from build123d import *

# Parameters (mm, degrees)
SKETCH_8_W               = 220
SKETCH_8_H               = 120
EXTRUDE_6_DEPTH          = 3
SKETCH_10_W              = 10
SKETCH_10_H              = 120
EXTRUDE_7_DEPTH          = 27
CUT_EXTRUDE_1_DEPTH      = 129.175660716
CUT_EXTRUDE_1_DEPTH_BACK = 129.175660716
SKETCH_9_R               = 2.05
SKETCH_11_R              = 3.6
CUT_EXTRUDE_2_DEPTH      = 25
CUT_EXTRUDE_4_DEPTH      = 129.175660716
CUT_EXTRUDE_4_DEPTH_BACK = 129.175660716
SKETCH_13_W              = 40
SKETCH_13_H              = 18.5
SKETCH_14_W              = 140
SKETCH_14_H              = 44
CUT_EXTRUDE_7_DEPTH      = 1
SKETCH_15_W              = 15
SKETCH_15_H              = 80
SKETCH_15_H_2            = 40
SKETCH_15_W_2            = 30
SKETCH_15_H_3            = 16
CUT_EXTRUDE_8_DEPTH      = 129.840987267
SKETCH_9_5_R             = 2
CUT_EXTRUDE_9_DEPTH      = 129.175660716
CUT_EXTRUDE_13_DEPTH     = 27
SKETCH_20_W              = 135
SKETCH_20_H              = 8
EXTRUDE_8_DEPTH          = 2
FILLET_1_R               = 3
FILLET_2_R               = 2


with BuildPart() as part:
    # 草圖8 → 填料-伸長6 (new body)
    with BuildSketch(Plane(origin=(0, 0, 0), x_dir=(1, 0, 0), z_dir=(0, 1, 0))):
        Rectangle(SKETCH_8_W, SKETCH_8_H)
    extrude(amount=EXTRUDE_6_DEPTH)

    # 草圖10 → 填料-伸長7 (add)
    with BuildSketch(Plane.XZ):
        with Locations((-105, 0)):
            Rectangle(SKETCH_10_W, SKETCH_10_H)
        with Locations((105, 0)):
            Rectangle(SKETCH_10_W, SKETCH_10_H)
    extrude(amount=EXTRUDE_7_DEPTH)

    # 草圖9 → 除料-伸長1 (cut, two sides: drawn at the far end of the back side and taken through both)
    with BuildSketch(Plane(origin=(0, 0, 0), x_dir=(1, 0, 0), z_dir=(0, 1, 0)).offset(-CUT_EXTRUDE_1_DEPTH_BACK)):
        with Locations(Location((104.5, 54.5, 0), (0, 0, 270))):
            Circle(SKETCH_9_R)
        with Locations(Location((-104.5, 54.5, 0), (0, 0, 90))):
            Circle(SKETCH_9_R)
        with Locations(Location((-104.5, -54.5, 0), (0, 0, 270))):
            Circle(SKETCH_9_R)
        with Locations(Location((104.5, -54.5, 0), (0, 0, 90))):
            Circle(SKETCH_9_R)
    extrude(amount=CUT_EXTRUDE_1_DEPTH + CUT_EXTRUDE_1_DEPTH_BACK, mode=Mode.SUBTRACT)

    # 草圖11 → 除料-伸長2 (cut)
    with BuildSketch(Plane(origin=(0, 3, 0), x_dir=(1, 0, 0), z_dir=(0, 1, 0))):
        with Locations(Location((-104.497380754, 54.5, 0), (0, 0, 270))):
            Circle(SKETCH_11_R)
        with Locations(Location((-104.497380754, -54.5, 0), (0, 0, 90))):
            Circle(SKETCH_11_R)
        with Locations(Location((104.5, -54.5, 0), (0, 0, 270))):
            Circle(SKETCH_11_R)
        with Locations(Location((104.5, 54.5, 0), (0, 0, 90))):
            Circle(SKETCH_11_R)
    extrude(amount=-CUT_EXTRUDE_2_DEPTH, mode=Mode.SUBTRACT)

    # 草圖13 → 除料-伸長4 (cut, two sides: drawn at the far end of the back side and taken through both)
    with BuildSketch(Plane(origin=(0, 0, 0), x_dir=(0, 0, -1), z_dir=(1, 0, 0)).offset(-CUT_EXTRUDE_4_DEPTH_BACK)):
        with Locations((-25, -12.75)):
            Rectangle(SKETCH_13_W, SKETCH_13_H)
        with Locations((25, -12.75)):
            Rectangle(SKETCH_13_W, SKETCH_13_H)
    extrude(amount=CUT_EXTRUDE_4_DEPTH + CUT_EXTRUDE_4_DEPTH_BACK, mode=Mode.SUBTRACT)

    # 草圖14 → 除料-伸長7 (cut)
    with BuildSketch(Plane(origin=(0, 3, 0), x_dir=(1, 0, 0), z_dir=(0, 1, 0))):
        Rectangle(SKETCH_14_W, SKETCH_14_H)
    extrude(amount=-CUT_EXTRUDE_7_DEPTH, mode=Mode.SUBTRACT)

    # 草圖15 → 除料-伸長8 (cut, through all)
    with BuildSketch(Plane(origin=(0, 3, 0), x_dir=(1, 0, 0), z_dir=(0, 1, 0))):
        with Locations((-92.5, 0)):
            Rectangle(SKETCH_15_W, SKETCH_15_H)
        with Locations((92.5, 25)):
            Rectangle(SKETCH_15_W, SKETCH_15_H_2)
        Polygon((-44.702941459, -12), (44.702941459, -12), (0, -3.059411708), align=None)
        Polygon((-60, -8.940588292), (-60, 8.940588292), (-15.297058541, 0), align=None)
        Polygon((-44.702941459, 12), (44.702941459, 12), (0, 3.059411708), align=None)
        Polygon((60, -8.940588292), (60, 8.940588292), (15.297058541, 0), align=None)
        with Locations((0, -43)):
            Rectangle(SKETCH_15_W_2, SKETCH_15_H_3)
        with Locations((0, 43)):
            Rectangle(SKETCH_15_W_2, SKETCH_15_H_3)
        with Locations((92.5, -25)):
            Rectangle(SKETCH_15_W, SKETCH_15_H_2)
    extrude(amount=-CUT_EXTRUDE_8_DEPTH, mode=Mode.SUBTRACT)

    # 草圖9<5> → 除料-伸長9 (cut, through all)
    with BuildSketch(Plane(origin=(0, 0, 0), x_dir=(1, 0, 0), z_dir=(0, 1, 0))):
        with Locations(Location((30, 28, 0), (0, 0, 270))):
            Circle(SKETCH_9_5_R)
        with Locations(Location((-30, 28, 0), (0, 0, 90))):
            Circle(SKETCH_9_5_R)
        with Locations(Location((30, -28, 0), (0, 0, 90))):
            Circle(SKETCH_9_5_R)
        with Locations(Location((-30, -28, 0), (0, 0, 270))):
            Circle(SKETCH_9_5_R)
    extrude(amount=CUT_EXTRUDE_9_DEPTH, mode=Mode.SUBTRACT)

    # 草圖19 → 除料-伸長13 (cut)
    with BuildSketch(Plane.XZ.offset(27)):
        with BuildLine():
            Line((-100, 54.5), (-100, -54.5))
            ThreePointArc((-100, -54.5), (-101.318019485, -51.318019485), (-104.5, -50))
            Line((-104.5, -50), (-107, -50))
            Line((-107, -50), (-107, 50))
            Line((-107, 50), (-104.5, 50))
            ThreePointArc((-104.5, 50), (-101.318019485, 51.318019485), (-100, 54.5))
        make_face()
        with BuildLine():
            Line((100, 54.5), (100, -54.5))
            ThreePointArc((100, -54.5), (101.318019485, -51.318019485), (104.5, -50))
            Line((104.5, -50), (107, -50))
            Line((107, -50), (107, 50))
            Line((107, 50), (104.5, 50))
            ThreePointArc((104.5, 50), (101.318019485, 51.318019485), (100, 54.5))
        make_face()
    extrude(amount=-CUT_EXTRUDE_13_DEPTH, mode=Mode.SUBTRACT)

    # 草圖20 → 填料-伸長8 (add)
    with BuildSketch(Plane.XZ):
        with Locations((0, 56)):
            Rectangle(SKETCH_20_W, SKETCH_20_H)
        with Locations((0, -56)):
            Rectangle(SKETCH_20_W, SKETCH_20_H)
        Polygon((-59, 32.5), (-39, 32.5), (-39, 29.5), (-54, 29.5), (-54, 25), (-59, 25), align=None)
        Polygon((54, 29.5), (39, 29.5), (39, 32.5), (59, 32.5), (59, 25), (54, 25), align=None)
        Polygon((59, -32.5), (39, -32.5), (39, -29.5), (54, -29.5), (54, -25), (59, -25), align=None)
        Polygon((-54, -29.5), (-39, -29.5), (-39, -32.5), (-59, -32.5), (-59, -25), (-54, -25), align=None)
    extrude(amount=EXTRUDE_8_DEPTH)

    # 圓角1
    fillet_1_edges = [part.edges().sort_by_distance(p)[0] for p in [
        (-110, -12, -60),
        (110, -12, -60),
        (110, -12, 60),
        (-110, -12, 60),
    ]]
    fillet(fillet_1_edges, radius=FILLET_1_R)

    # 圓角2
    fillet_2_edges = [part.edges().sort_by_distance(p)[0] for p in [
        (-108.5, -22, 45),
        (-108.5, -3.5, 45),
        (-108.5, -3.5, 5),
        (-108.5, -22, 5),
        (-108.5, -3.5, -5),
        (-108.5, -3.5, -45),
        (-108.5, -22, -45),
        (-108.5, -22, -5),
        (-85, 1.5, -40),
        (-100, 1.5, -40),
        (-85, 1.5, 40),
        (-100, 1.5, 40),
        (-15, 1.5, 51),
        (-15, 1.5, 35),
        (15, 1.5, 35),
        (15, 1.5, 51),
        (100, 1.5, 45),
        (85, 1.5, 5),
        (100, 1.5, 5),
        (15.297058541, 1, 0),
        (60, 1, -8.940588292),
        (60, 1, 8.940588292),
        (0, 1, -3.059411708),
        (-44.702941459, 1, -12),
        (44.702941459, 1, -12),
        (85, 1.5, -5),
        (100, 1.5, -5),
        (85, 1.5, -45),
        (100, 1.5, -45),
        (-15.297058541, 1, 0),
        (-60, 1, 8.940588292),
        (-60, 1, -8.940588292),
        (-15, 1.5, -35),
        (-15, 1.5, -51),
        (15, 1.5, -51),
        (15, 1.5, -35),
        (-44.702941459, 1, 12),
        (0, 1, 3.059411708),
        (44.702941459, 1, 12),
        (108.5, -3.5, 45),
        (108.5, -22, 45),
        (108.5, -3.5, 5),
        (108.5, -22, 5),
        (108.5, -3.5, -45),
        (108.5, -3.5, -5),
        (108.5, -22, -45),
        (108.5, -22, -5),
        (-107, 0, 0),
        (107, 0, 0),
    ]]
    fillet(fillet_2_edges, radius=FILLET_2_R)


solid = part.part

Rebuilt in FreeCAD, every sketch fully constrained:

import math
import FreeCAD as App
import Part
import Sketcher
from FreeCAD import Vector
Q = App.Units.Quantity


def edges_at(feature, points):
    """Names of the edges that pass closest to the given points."""
    edges = feature.Shape.Edges
    near = lambda p: min(range(len(edges)), key=lambda i: edges[i].distToShape(Part.Vertex(*p))[0])
    return sorted({f"Edge{near(p) + 1}" for p in points})

doc = App.newDocument("Part")
body = doc.addObject("PartDesign::Body", "Body")

# Sketch on XZ plane
sketch1 = body.newObject("Sketcher::SketchObject", "Sketch")
sketch1.AttachmentSupport = (doc.getObject("XZ_Plane"), [""])
sketch1.MapMode = "FlatFace"
sketch1.addGeometry([
    Part.LineSegment(Vector(-110, -60, 0), Vector(-110, 60, 0)),
    Part.LineSegment(Vector(-110, 60, 0), Vector(110, 60, 0)),
    Part.LineSegment(Vector(110, 60, 0), Vector(110, -60, 0)),
    Part.LineSegment(Vector(110, -60, 0), Vector(-110, -60, 0)),
], False)
sketch1.addConstraint([
    Sketcher.Constraint("Coincident", 0, 2, 1, 1),
    Sketcher.Constraint("Coincident", 1, 2, 2, 1),
    Sketcher.Constraint("Coincident", 2, 2, 3, 1),
    Sketcher.Constraint("Coincident", 3, 2, 0, 1),
    Sketcher.Constraint("Vertical", 0),
    Sketcher.Constraint("Horizontal", 1),
    Sketcher.Constraint("Vertical", 2),
    Sketcher.Constraint("Horizontal", 3),
    Sketcher.Constraint("Symmetric", 0, 2, 2, 2, -1, 1),
    Sketcher.Constraint("DistanceX", 1, 1, 1, 2, Q("220 mm")),
    Sketcher.Constraint("DistanceY", 0, 1, 0, 2, Q("120 mm")),
])
pad1 = body.newObject("PartDesign::Pad", "Pad")
pad1.Profile = sketch1
pad1.Length = 3
pad1.Reversed = True

# Sketch on XZ plane
sketch2 = body.newObject("Sketcher::SketchObject", "Sketch001")
sketch2.AttachmentSupport = (doc.getObject("XZ_Plane"), [""])
sketch2.MapMode = "FlatFace"
sketch2.addGeometry([
    Part.LineSegment(Vector(-110, 60, 0), Vector(-110, -60, 0)),  # 0
    Part.LineSegment(Vector(-110, -60, 0), Vector(-100, -60, 0)),  # 1
    Part.LineSegment(Vector(-100, -60, 0), Vector(-100, 60, 0)),  # 2
    Part.LineSegment(Vector(-100, 60, 0), Vector(-110, 60, 0)),  # 3
    Part.LineSegment(Vector(100, 60, 0), Vector(100, -60, 0)),  # 4
    Part.LineSegment(Vector(100, -60, 0), Vector(110, -60, 0)),  # 5
    Part.LineSegment(Vector(110, -60, 0), Vector(110, 60, 0)),  # 6
    Part.LineSegment(Vector(110, 60, 0), Vector(100, 60, 0)),  # 7
], False)
sketch2.addConstraint([
    Sketcher.Constraint("Coincident", 0, 2, 1, 1),
    Sketcher.Constraint("Coincident", 1, 2, 2, 1),
    Sketcher.Constraint("Coincident", 2, 2, 3, 1),
    Sketcher.Constraint("Coincident", 3, 2, 0, 1),
    Sketcher.Constraint("Coincident", 4, 2, 5, 1),
    Sketcher.Constraint("Coincident", 5, 2, 6, 1),
    Sketcher.Constraint("Coincident", 6, 2, 7, 1),
    Sketcher.Constraint("Coincident", 7, 2, 4, 1),
    Sketcher.Constraint("Vertical", 0),
    Sketcher.Constraint("Horizontal", 1),
    Sketcher.Constraint("Vertical", 2),
    Sketcher.Constraint("Horizontal", 3),
    Sketcher.Constraint("Vertical", 4),
    Sketcher.Constraint("Horizontal", 5),
    Sketcher.Constraint("Vertical", 6),
    Sketcher.Constraint("Horizontal", 7),
    Sketcher.Constraint("Symmetric", 2, 2, 4, 2, -1, 1),
    Sketcher.Constraint("Symmetric", 0, 2, 6, 2, -1, 1),
    Sketcher.Constraint("Horizontal", 1, 2, 4, 2),
    Sketcher.Constraint("DistanceX", 1, 1, 1, 2, Q("10 mm")),
    Sketcher.Constraint("DistanceY", 0, 2, 0, 1, Q("120 mm")),
    Sketcher.Constraint("DistanceX", 0, 2, -1, 1, Q("110 mm")),
])
pad2 = body.newObject("PartDesign::Pad", "Pad001")
pad2.Profile = sketch2
pad2.Length = 27

# Sketch on XZ plane
sketch3 = body.newObject("Sketcher::SketchObject", "Sketch002")
sketch3.AttachmentSupport = (doc.getObject("XZ_Plane"), [""])
sketch3.MapMode = "FlatFace"
sketch3.addGeometry([
    Part.Circle(Vector(104.5, -54.5, 0), Vector(0, 0, 1), 2.05),
    Part.Circle(Vector(-104.5, -54.5, 0), Vector(0, 0, 1), 2.05),
    Part.Circle(Vector(-104.5, 54.5, 0), Vector(0, 0, 1), 2.05),
    Part.Circle(Vector(104.5, 54.5, 0), Vector(0, 0, 1), 2.05),
], False)
sketch3.addConstraint([
    Sketcher.Constraint("Equal", 0, 1),
    Sketcher.Constraint("Equal", 1, 2),
    Sketcher.Constraint("Equal", 2, 3),
    Sketcher.Constraint("Symmetric", 0, 3, 2, 3, -1, 1),
    Sketcher.Constraint("Symmetric", 1, 3, 3, 3, -1, 1),
    Sketcher.Constraint("Symmetric", 0, 3, 1, 3, -2),
    Sketcher.Constraint("Diameter", 0, Q("4.1 mm")),
    Sketcher.Constraint("DistanceX", 1, 3, 0, 3, Q("209 mm")),
    Sketcher.Constraint("DistanceY", 1, 3, 2, 3, Q("109 mm")),
])
pocket1 = body.newObject("PartDesign::Pocket", "Pocket")
pocket1.Profile = sketch3
pocket1.Type = "ThroughAll"
pocket1.Midplane = True

# Sketch on XZ plane
sketch4 = body.newObject("Sketcher::SketchObject", "Sketch003")
sketch4.AttachmentSupport = (doc.getObject("XZ_Plane"), [""])
sketch4.MapMode = "FlatFace"
sketch4.AttachmentOffset = App.Placement(Vector(0, 0, -3), App.Rotation())
sketch4.addGeometry([
    Part.Circle(Vector(-104.497381, -54.5, 0), Vector(0, 0, 1), 3.6),
    Part.Circle(Vector(-104.497381, 54.5, 0), Vector(0, 0, 1), 3.6),
    Part.Circle(Vector(104.5, 54.5, 0), Vector(0, 0, 1), 3.6),
    Part.Circle(Vector(104.5, -54.5, 0), Vector(0, 0, 1), 3.6),
], False)
sketch4.addConstraint([
    Sketcher.Constraint("Equal", 0, 1),
    Sketcher.Constraint("Equal", 1, 2),
    Sketcher.Constraint("Equal", 2, 3),
    Sketcher.Constraint("Symmetric", 0, 3, 1, 3, -1),
    Sketcher.Constraint("Symmetric", 2, 3, 3, 3, -1),
    Sketcher.Constraint("Horizontal", 1, 3, 2, 3),
    Sketcher.Constraint("Diameter", 0, Q("7.2 mm")),
    Sketcher.Constraint("DistanceY", 0, 3, 1, 3, Q("109 mm")),
    Sketcher.Constraint("DistanceX", -1, 1, 2, 3, Q("104.5 mm")),
    Sketcher.Constraint("DistanceX", 0, 3, -1, 1, Q("104.497381 mm")),
])
pocket2 = body.newObject("PartDesign::Pocket", "Pocket001")
pocket2.Profile = sketch4
pocket2.Length = 25
pocket2.Reversed = True

# Sketch on YZ plane
sketch5 = body.newObject("Sketcher::SketchObject", "Sketch004")
sketch5.AttachmentSupport = (doc.getObject("YZ_Plane"), [""])
sketch5.MapMode = "FlatFace"
sketch5.addGeometry([
    Part.LineSegment(Vector(-3.5, 45, 0), Vector(-22, 45, 0)),  # 0
    Part.LineSegment(Vector(-22, 45, 0), Vector(-22, 5, 0)),  # 1
    Part.LineSegment(Vector(-22, 5, 0), Vector(-3.5, 5, 0)),  # 2
    Part.LineSegment(Vector(-3.5, 5, 0), Vector(-3.5, 45, 0)),  # 3
    Part.LineSegment(Vector(-3.5, -5, 0), Vector(-22, -5, 0)),  # 4
    Part.LineSegment(Vector(-22, -5, 0), Vector(-22, -45, 0)),  # 5
    Part.LineSegment(Vector(-22, -45, 0), Vector(-3.5, -45, 0)),  # 6
    Part.LineSegment(Vector(-3.5, -45, 0), Vector(-3.5, -5, 0)),  # 7
], False)
sketch5.addConstraint([
    Sketcher.Constraint("Coincident", 0, 2, 1, 1),
    Sketcher.Constraint("Coincident", 1, 2, 2, 1),
    Sketcher.Constraint("Coincident", 2, 2, 3, 1),
    Sketcher.Constraint("Coincident", 3, 2, 0, 1),
    Sketcher.Constraint("Coincident", 4, 2, 5, 1),
    Sketcher.Constraint("Coincident", 5, 2, 6, 1),
    Sketcher.Constraint("Coincident", 6, 2, 7, 1),
    Sketcher.Constraint("Coincident", 7, 2, 4, 1),
    Sketcher.Constraint("Horizontal", 0),
    Sketcher.Constraint("Vertical", 1),
    Sketcher.Constraint("Horizontal", 2),
    Sketcher.Constraint("Vertical", 3),
    Sketcher.Constraint("Horizontal", 4),
    Sketcher.Constraint("Vertical", 5),
    Sketcher.Constraint("Horizontal", 6),
    Sketcher.Constraint("Vertical", 7),
    Sketcher.Constraint("Symmetric", 1, 2, 4, 2, -1),
    Sketcher.Constraint("Symmetric", 3, 2, 6, 2, -1),
    Sketcher.Constraint("DistanceY", 1, 2, 1, 1, Q("40 mm")),
    Sketcher.Constraint("DistanceX", 0, 2, 0, 1, Q("18.5 mm")),
    Sketcher.Constraint("DistanceX", 0, 2, -1, 1, Q("22 mm")),
    Sketcher.Constraint("DistanceY", -1, 1, 0, 2, Q("45 mm")),
])
pocket3 = body.newObject("PartDesign::Pocket", "Pocket002")
pocket3.Profile = sketch5
pocket3.Type = "ThroughAll"
pocket3.Midplane = True

# Sketch on XZ plane
sketch6 = body.newObject("Sketcher::SketchObject", "Sketch005")
sketch6.AttachmentSupport = (doc.getObject("XZ_Plane"), [""])
sketch6.MapMode = "FlatFace"
sketch6.AttachmentOffset = App.Placement(Vector(0, 0, -3), App.Rotation())
sketch6.addGeometry([
    Part.LineSegment(Vector(-70, -22, 0), Vector(-70, 22, 0)),
    Part.LineSegment(Vector(-70, 22, 0), Vector(70, 22, 0)),
    Part.LineSegment(Vector(70, 22, 0), Vector(70, -22, 0)),
    Part.LineSegment(Vector(70, -22, 0), Vector(-70, -22, 0)),
], False)
sketch6.addConstraint([
    Sketcher.Constraint("Coincident", 0, 2, 1, 1),
    Sketcher.Constraint("Coincident", 1, 2, 2, 1),
    Sketcher.Constraint("Coincident", 2, 2, 3, 1),
    Sketcher.Constraint("Coincident", 3, 2, 0, 1),
    Sketcher.Constraint("Vertical", 0),
    Sketcher.Constraint("Horizontal", 1),
    Sketcher.Constraint("Vertical", 2),
    Sketcher.Constraint("Horizontal", 3),
    Sketcher.Constraint("Symmetric", 0, 2, 2, 2, -1, 1),
    Sketcher.Constraint("DistanceX", 1, 1, 1, 2, Q("140 mm")),
    Sketcher.Constraint("DistanceY", 0, 1, 0, 2, Q("44 mm")),
])
pocket4 = body.newObject("PartDesign::Pocket", "Pocket003")
pocket4.Profile = sketch6
pocket4.Length = 1
pocket4.Reversed = True

# Sketch on XZ plane
sketch7 = body.newObject("Sketcher::SketchObject", "Sketch006")
sketch7.AttachmentSupport = (doc.getObject("XZ_Plane"), [""])
sketch7.MapMode = "FlatFace"
sketch7.AttachmentOffset = App.Placement(Vector(0, 0, -3), App.Rotation())
sketch7.addGeometry([
    Part.LineSegment(Vector(-100, -40, 0), Vector(-100, 40, 0)),  # 0
    Part.LineSegment(Vector(-100, 40, 0), Vector(-85, 40, 0)),  # 1
    Part.LineSegment(Vector(-85, 40, 0), Vector(-85, -40, 0)),  # 2
    Part.LineSegment(Vector(-85, -40, 0), Vector(-100, -40, 0)),  # 3
    Part.LineSegment(Vector(85, -45, 0), Vector(85, -5, 0)),  # 4
    Part.LineSegment(Vector(85, -5, 0), Vector(100, -5, 0)),  # 5
    Part.LineSegment(Vector(100, -5, 0), Vector(100, -45, 0)),  # 6
    Part.LineSegment(Vector(100, -45, 0), Vector(85, -45, 0)),  # 7
    Part.LineSegment(Vector(-44.702941, 12, 0), Vector(44.702941, 12, 0)),  # 8
    Part.LineSegment(Vector(44.702941, 12, 0), Vector(0, 3.059412, 0)),  # 9
    Part.LineSegment(Vector(0, 3.059412, 0), Vector(-44.702941, 12, 0)),  # 10
    Part.LineSegment(Vector(-60, -8.940588, 0), Vector(-60, 8.940588, 0)),  # 11
    Part.LineSegment(Vector(-60, 8.940588, 0), Vector(-15.297059, 0, 0)),  # 12
    Part.LineSegment(Vector(-15.297059, 0, 0), Vector(-60, -8.940588, 0)),  # 13
    Part.LineSegment(Vector(44.702941, -12, 0), Vector(-44.702941, -12, 0)),  # 14
    Part.LineSegment(Vector(-44.702941, -12, 0), Vector(0, -3.059412, 0)),  # 15
    Part.LineSegment(Vector(0, -3.059412, 0), Vector(44.702941, -12, 0)),  # 16
    Part.LineSegment(Vector(60, 8.940588, 0), Vector(60, -8.940588, 0)),  # 17
    Part.LineSegment(Vector(60, -8.940588, 0), Vector(15.297059, 0, 0)),  # 18
    Part.LineSegment(Vector(15.297059, 0, 0), Vector(60, 8.940588, 0)),  # 19
    Part.LineSegment(Vector(-15, 35, 0), Vector(-15, 51, 0)),  # 20
    Part.LineSegment(Vector(-15, 51, 0), Vector(15, 51, 0)),  # 21
    Part.LineSegment(Vector(15, 51, 0), Vector(15, 35, 0)),  # 22
    Part.LineSegment(Vector(15, 35, 0), Vector(-15, 35, 0)),  # 23
    Part.LineSegment(Vector(-15, -51, 0), Vector(-15, -35, 0)),  # 24
    Part.LineSegment(Vector(-15, -35, 0), Vector(15, -35, 0)),  # 25
    Part.LineSegment(Vector(15, -35, 0), Vector(15, -51, 0)),  # 26
    Part.LineSegment(Vector(15, -51, 0), Vector(-15, -51, 0)),  # 27
    Part.LineSegment(Vector(85, 5, 0), Vector(85, 45, 0)),  # 28
    Part.LineSegment(Vector(85, 45, 0), Vector(100, 45, 0)),  # 29
    Part.LineSegment(Vector(100, 45, 0), Vector(100, 5, 0)),  # 30
    Part.LineSegment(Vector(100, 5, 0), Vector(85, 5, 0)),  # 31
], False)
sketch7.addConstraint([
    Sketcher.Constraint("Coincident", 0, 2, 1, 1),
    Sketcher.Constraint("Coincident", 1, 2, 2, 1),
    Sketcher.Constraint("Coincident", 2, 2, 3, 1),
    Sketcher.Constraint("Coincident", 3, 2, 0, 1),
    Sketcher.Constraint("Coincident", 4, 2, 5, 1),
    Sketcher.Constraint("Coincident", 5, 2, 6, 1),
    Sketcher.Constraint("Coincident", 6, 2, 7, 1),
    Sketcher.Constraint("Coincident", 7, 2, 4, 1),
    Sketcher.Constraint("Coincident", 8, 2, 9, 1),
    Sketcher.Constraint("Coincident", 9, 2, 10, 1),
    Sketcher.Constraint("Coincident", 10, 2, 8, 1),
    Sketcher.Constraint("Coincident", 11, 2, 12, 1),
    Sketcher.Constraint("Coincident", 12, 2, 13, 1),
    Sketcher.Constraint("Coincident", 13, 2, 11, 1),
    Sketcher.Constraint("Coincident", 14, 2, 15, 1),
    Sketcher.Constraint("Coincident", 15, 2, 16, 1),
    Sketcher.Constraint("Coincident", 16, 2, 14, 1),
    Sketcher.Constraint("Coincident", 17, 2, 18, 1),
    Sketcher.Constraint("Coincident", 18, 2, 19, 1),
    Sketcher.Constraint("Coincident", 19, 2, 17, 1),
    Sketcher.Constraint("Coincident", 20, 2, 21, 1),
    Sketcher.Constraint("Coincident", 21, 2, 22, 1),
    Sketcher.Constraint("Coincident", 22, 2, 23, 1),
    Sketcher.Constraint("Coincident", 23, 2, 20, 1),
    Sketcher.Constraint("Coincident", 24, 2, 25, 1),
    Sketcher.Constraint("Coincident", 25, 2, 26, 1),
    Sketcher.Constraint("Coincident", 26, 2, 27, 1),
    Sketcher.Constraint("Coincident", 27, 2, 24, 1),
    Sketcher.Constraint("Coincident", 28, 2, 29, 1),
    Sketcher.Constraint("Coincident", 29, 2, 30, 1),
    Sketcher.Constraint("Coincident", 30, 2, 31, 1),
    Sketcher.Constraint("Coincident", 31, 2, 28, 1),
    Sketcher.Constraint("Vertical", 0),
    Sketcher.Constraint("Horizontal", 1),
    Sketcher.Constraint("Vertical", 2),
    Sketcher.Constraint("Horizontal", 3),
    Sketcher.Constraint("Vertical", 4),
    Sketcher.Constraint("Horizontal", 5),
    Sketcher.Constraint("Vertical", 6),
    Sketcher.Constraint("Horizontal", 7),
    Sketcher.Constraint("Horizontal", 8),
    Sketcher.Constraint("Vertical", 11),
    Sketcher.Constraint("Horizontal", 14),
    Sketcher.Constraint("Vertical", 17),
    Sketcher.Constraint("Vertical", 20),
    Sketcher.Constraint("Horizontal", 21),
    Sketcher.Constraint("Vertical", 22),
    Sketcher.Constraint("Horizontal", 23),
    Sketcher.Constraint("Vertical", 24),
    Sketcher.Constraint("Horizontal", 25),
    Sketcher.Constraint("Vertical", 26),
    Sketcher.Constraint("Horizontal", 27),
    Sketcher.Constraint("Vertical", 28),
    Sketcher.Constraint("Horizontal", 29),
    Sketcher.Constraint("Vertical", 30),
    Sketcher.Constraint("Horizontal", 31),
    Sketcher.Constraint("Symmetric", 8, 2, 14, 2, -1, 1),
    Sketcher.Constraint("Symmetric", 9, 2, 15, 2, -1, 1),
    Sketcher.Constraint("Symmetric", 11, 2, 17, 2, -1, 1),
    Sketcher.Constraint("Symmetric", 12, 2, 18, 2, -1, 1),
    Sketcher.Constraint("Symmetric", 22, 2, 24, 2, -1, 1),
    Sketcher.Constraint("Symmetric", 20, 2, 26, 2, -1, 1),
    Sketcher.Constraint("Symmetric", 7, 2, 28, 2, -1),
    Sketcher.Constraint("Symmetric", 5, 2, 30, 2, -1),
    Sketcher.Constraint("PointOnObject", 9, 2, -2),
    Sketcher.Constraint("PointOnObject", 12, 2, -1),
    Sketcher.Constraint("Parallel", 10, 12),
    Sketcher.Constraint("Parallel", 9, 13),
    Sketcher.Constraint("Parallel", 12, 16),
    Sketcher.Constraint("Parallel", 15, 19),
    Sketcher.Constraint("Horizontal", 13, 2, 17, 2),
    Sketcher.Constraint("Vertical", 23, 2, 24, 2),
    Sketcher.Constraint("Equal", 3, 5),
    Sketcher.Constraint("Equal", 10, 12),
    Sketcher.Constraint("DistanceX", 1, 1, 1, 2, Q("15 mm")),
    Sketcher.Constraint("DistanceX", 21, 1, 21, 2, Q("30 mm")),
    Sketcher.Constraint("DistanceY", 0, 1, 0, 2, Q("80 mm")),
    Sketcher.Constraint("DistanceY", 4, 1, 4, 2, Q("40 mm")),
    Sketcher.Constraint("DistanceY", 20, 1, 20, 2, Q("16 mm")),
    Sketcher.Constraint("DistanceX", 0, 2, -1, 1, Q("100 mm")),
    Sketcher.Constraint("DistanceY", -1, 1, 0, 2, Q("40 mm")),
    Sketcher.Constraint("DistanceX", -1, 1, 4, 2, Q("85 mm")),
    Sketcher.Constraint("DistanceY", 4, 2, -1, 1, Q("5 mm")),
    Sketcher.Constraint("DistanceY", -1, 1, 8, 2, Q("12 mm")),
    Sketcher.Constraint("DistanceX", 11, 2, -1, 1, Q("60 mm")),
    Sketcher.Constraint("DistanceY", -1, 1, 20, 2, Q("51 mm")),
    Sketcher.Constraint("DistanceX", 8, 1, 8, 2, Q("89.405883 mm")),
    Sketcher.Constraint("DistanceY", 11, 1, 11, 2, Q("17.881177 mm")),
])
pocket5 = body.newObject("PartDesign::Pocket", "Pocket004")
pocket5.Profile = sketch7
pocket5.Type = "ThroughAll"
pocket5.Reversed = True

# Sketch on XZ plane
sketch8 = body.newObject("Sketcher::SketchObject", "Sketch007")
sketch8.AttachmentSupport = (doc.getObject("XZ_Plane"), [""])
sketch8.MapMode = "FlatFace"
sketch8.addGeometry([
    Part.Circle(Vector(30, -28, 0), Vector(0, 0, 1), 2),
    Part.Circle(Vector(-30, -28, 0), Vector(0, 0, 1), 2),
    Part.Circle(Vector(30, 28, 0), Vector(0, 0, 1), 2),
    Part.Circle(Vector(-30, 28, 0), Vector(0, 0, 1), 2),
], False)
sketch8.addConstraint([
    Sketcher.Constraint("Equal", 0, 1),
    Sketcher.Constraint("Equal", 1, 2),
    Sketcher.Constraint("Equal", 2, 3),
    Sketcher.Constraint("Symmetric", 1, 3, 2, 3, -1, 1),
    Sketcher.Constraint("Symmetric", 0, 3, 3, 3, -1, 1),
    Sketcher.Constraint("Symmetric", 0, 3, 1, 3, -2),
    Sketcher.Constraint("Diameter", 0, Q("4 mm")),
    Sketcher.Constraint("DistanceX", -1, 1, 0, 3, Q("30 mm")),
    Sketcher.Constraint("DistanceY", 0, 3, -1, 1, Q("28 mm")),
])
pocket6 = body.newObject("PartDesign::Pocket", "Pocket005")
pocket6.Profile = sketch8
pocket6.Type = "ThroughAll"

# Sketch on XZ plane
sketch9 = body.newObject("Sketcher::SketchObject", "Sketch008")
sketch9.AttachmentSupport = (doc.getObject("XZ_Plane"), [""])
sketch9.MapMode = "FlatFace"
sketch9.AttachmentOffset = App.Placement(Vector(0, 0, 27), App.Rotation())
sketch9.addGeometry([
    Part.LineSegment(Vector(-100, -54.5, 0), Vector(-100, 54.5, 0)),  # 0
    Part.ArcOfCircle(Part.Circle(Vector(-104.5, 54.5, 0), Vector(0, 0, 1), 4.5), math.radians(-90), math.radians(0)),  # 1
    Part.LineSegment(Vector(-104.5, 50, 0), Vector(-107, 50, 0)),  # 2
    Part.LineSegment(Vector(-107, 50, 0), Vector(-107, -50, 0)),  # 3
    Part.LineSegment(Vector(-107, -50, 0), Vector(-104.5, -50, 0)),  # 4
    Part.ArcOfCircle(Part.Circle(Vector(-104.5, -54.5, 0), Vector(0, 0, 1), 4.5), math.radians(0), math.radians(90)),  # 5
    Part.LineSegment(Vector(100, 54.5, 0), Vector(100, -54.5, 0)),  # 6
    Part.ArcOfCircle(Part.Circle(Vector(104.5, -54.5, 0), Vector(0, 0, 1), 4.5), math.radians(90), math.radians(180)),  # 7
    Part.LineSegment(Vector(104.5, -50, 0), Vector(107, -50, 0)),  # 8
    Part.LineSegment(Vector(107, -50, 0), Vector(107, 50, 0)),  # 9
    Part.LineSegment(Vector(107, 50, 0), Vector(104.5, 50, 0)),  # 10
    Part.ArcOfCircle(Part.Circle(Vector(104.5, 54.5, 0), Vector(0, 0, 1), 4.5), math.radians(-180), math.radians(-90)),  # 11
], False)
sketch9.addConstraint([
    Sketcher.Constraint("Tangent", 0, 2, 1, 2),
    Sketcher.Constraint("Tangent", 1, 1, 2, 1),
    Sketcher.Constraint("Coincident", 2, 2, 3, 1),
    Sketcher.Constraint("Coincident", 3, 2, 4, 1),
    Sketcher.Constraint("Tangent", 4, 2, 5, 2),
    Sketcher.Constraint("Tangent", 5, 1, 0, 1),
    Sketcher.Constraint("Tangent", 6, 2, 7, 2),
    Sketcher.Constraint("Tangent", 7, 1, 8, 1),
    Sketcher.Constraint("Coincident", 8, 2, 9, 1),
    Sketcher.Constraint("Coincident", 9, 2, 10, 1),
    Sketcher.Constraint("Tangent", 10, 2, 11, 2),
    Sketcher.Constraint("Tangent", 11, 1, 6, 1),
    Sketcher.Constraint("Vertical", 0),
    Sketcher.Constraint("Horizontal", 2),
    Sketcher.Constraint("Vertical", 3),
    Sketcher.Constraint("Horizontal", 4),
    Sketcher.Constraint("Vertical", 6),
    Sketcher.Constraint("Horizontal", 8),
    Sketcher.Constraint("Vertical", 9),
    Sketcher.Constraint("Horizontal", 10),
    Sketcher.Constraint("Equal", 1, 5),
    Sketcher.Constraint("Equal", 5, 7),
    Sketcher.Constraint("Equal", 7, 11),
    Sketcher.Constraint("Symmetric", 1, 3, 7, 3, -1, 1),
    Sketcher.Constraint("Symmetric", 3, 2, 9, 2, -1, 1),
    Sketcher.Constraint("Horizontal", 5, 3, 7, 3),
    Sketcher.Constraint("Radius", 1, Q("4.5 mm")),
    Sketcher.Constraint("DistanceY", 0, 1, 0, 2, Q("109 mm")),
    Sketcher.Constraint("DistanceX", 2, 2, 2, 1, Q("2.5 mm")),
    Sketcher.Constraint("DistanceX", 0, 2, -1, 1, Q("100 mm")),
])
pocket7 = body.newObject("PartDesign::Pocket", "Pocket006")
pocket7.Profile = sketch9
pocket7.Length = 27

# Sketch on XZ plane
sketch10 = body.newObject("Sketcher::SketchObject", "Sketch009")
sketch10.AttachmentSupport = (doc.getObject("XZ_Plane"), [""])
sketch10.MapMode = "FlatFace"
sketch10.addGeometry([
    Part.LineSegment(Vector(-67.5, 60, 0), Vector(-67.5, 52, 0)),  # 0
    Part.LineSegment(Vector(-67.5, 52, 0), Vector(67.5, 52, 0)),  # 1
    Part.LineSegment(Vector(67.5, 52, 0), Vector(67.5, 60, 0)),  # 2
    Part.LineSegment(Vector(67.5, 60, 0), Vector(-67.5, 60, 0)),  # 3
    Part.LineSegment(Vector(-67.5, -52, 0), Vector(-67.5, -60, 0)),  # 4
    Part.LineSegment(Vector(-67.5, -60, 0), Vector(67.5, -60, 0)),  # 5
    Part.LineSegment(Vector(67.5, -60, 0), Vector(67.5, -52, 0)),  # 6
    Part.LineSegment(Vector(67.5, -52, 0), Vector(-67.5, -52, 0)),  # 7
    Part.LineSegment(Vector(-39, 32.5, 0), Vector(-59, 32.5, 0)),  # 8
    Part.LineSegment(Vector(-59, 32.5, 0), Vector(-59, 25, 0)),  # 9
    Part.LineSegment(Vector(-59, 25, 0), Vector(-54, 25, 0)),  # 10
    Part.LineSegment(Vector(-54, 25, 0), Vector(-54, 29.5, 0)),  # 11
    Part.LineSegment(Vector(-54, 29.5, 0), Vector(-39, 29.5, 0)),  # 12
    Part.LineSegment(Vector(-39, 29.5, 0), Vector(-39, 32.5, 0)),  # 13
    Part.LineSegment(Vector(39, 29.5, 0), Vector(54, 29.5, 0)),  # 14
    Part.LineSegment(Vector(54, 29.5, 0), Vector(54, 25, 0)),  # 15
    Part.LineSegment(Vector(54, 25, 0), Vector(59, 25, 0)),  # 16
    Part.LineSegment(Vector(59, 25, 0), Vector(59, 32.5, 0)),  # 17
    Part.LineSegment(Vector(59, 32.5, 0), Vector(39, 32.5, 0)),  # 18
    Part.LineSegment(Vector(39, 32.5, 0), Vector(39, 29.5, 0)),  # 19
    Part.LineSegment(Vector(39, -32.5, 0), Vector(59, -32.5, 0)),  # 20
    Part.LineSegment(Vector(59, -32.5, 0), Vector(59, -25, 0)),  # 21
    Part.LineSegment(Vector(59, -25, 0), Vector(54, -25, 0)),  # 22
    Part.LineSegment(Vector(54, -25, 0), Vector(54, -29.5, 0)),  # 23
    Part.LineSegment(Vector(54, -29.5, 0), Vector(39, -29.5, 0)),  # 24
    Part.LineSegment(Vector(39, -29.5, 0), Vector(39, -32.5, 0)),  # 25
    Part.LineSegment(Vector(-39, -29.5, 0), Vector(-54, -29.5, 0)),  # 26
    Part.LineSegment(Vector(-54, -29.5, 0), Vector(-54, -25, 0)),  # 27
    Part.LineSegment(Vector(-54, -25, 0), Vector(-59, -25, 0)),  # 28
    Part.LineSegment(Vector(-59, -25, 0), Vector(-59, -32.5, 0)),  # 29
    Part.LineSegment(Vector(-59, -32.5, 0), Vector(-39, -32.5, 0)),  # 30
    Part.LineSegment(Vector(-39, -32.5, 0), Vector(-39, -29.5, 0)),  # 31
], False)
sketch10.addConstraint([
    Sketcher.Constraint("Coincident", 0, 2, 1, 1),
    Sketcher.Constraint("Coincident", 1, 2, 2, 1),
    Sketcher.Constraint("Coincident", 2, 2, 3, 1),
    Sketcher.Constraint("Coincident", 3, 2, 0, 1),
    Sketcher.Constraint("Coincident", 4, 2, 5, 1),
    Sketcher.Constraint("Coincident", 5, 2, 6, 1),
    Sketcher.Constraint("Coincident", 6, 2, 7, 1),
    Sketcher.Constraint("Coincident", 7, 2, 4, 1),
    Sketcher.Constraint("Coincident", 8, 2, 9, 1),
    Sketcher.Constraint("Coincident", 9, 2, 10, 1),
    Sketcher.Constraint("Coincident", 10, 2, 11, 1),
    Sketcher.Constraint("Coincident", 11, 2, 12, 1),
    Sketcher.Constraint("Coincident", 12, 2, 13, 1),
    Sketcher.Constraint("Coincident", 13, 2, 8, 1),
    Sketcher.Constraint("Coincident", 14, 2, 15, 1),
    Sketcher.Constraint("Coincident", 15, 2, 16, 1),
    Sketcher.Constraint("Coincident", 16, 2, 17, 1),
    Sketcher.Constraint("Coincident", 17, 2, 18, 1),
    Sketcher.Constraint("Coincident", 18, 2, 19, 1),
    Sketcher.Constraint("Coincident", 19, 2, 14, 1),
    Sketcher.Constraint("Coincident", 20, 2, 21, 1),
    Sketcher.Constraint("Coincident", 21, 2, 22, 1),
    Sketcher.Constraint("Coincident", 22, 2, 23, 1),
    Sketcher.Constraint("Coincident", 23, 2, 24, 1),
    Sketcher.Constraint("Coincident", 24, 2, 25, 1),
    Sketcher.Constraint("Coincident", 25, 2, 20, 1),
    Sketcher.Constraint("Coincident", 26, 2, 27, 1),
    Sketcher.Constraint("Coincident", 27, 2, 28, 1),
    Sketcher.Constraint("Coincident", 28, 2, 29, 1),
    Sketcher.Constraint("Coincident", 29, 2, 30, 1),
    Sketcher.Constraint("Coincident", 30, 2, 31, 1),
    Sketcher.Constraint("Coincident", 31, 2, 26, 1),
    Sketcher.Constraint("Vertical", 0),
    Sketcher.Constraint("Horizontal", 1),
    Sketcher.Constraint("Vertical", 2),
    Sketcher.Constraint("Horizontal", 3),
    Sketcher.Constraint("Vertical", 4),
    Sketcher.Constraint("Horizontal", 5),
    Sketcher.Constraint("Vertical", 6),
    Sketcher.Constraint("Horizontal", 7),
    Sketcher.Constraint("Horizontal", 8),
    Sketcher.Constraint("Vertical", 9),
    Sketcher.Constraint("Horizontal", 10),
    Sketcher.Constraint("Vertical", 11),
    Sketcher.Constraint("Horizontal", 12),
    Sketcher.Constraint("Vertical", 13),
    Sketcher.Constraint("Horizontal", 14),
    Sketcher.Constraint("Vertical", 15),
    Sketcher.Constraint("Horizontal", 16),
    Sketcher.Constraint("Vertical", 17),
    Sketcher.Constraint("Horizontal", 18),
    Sketcher.Constraint("Vertical", 19),
    Sketcher.Constraint("Horizontal", 20),
    Sketcher.Constraint("Vertical", 21),
    Sketcher.Constraint("Horizontal", 22),
    Sketcher.Constraint("Vertical", 23),
    Sketcher.Constraint("Horizontal", 24),
    Sketcher.Constraint("Vertical", 25),
    Sketcher.Constraint("Horizontal", 26),
    Sketcher.Constraint("Vertical", 27),
    Sketcher.Constraint("Horizontal", 28),
    Sketcher.Constraint("Vertical", 29),
    Sketcher.Constraint("Horizontal", 30),
    Sketcher.Constraint("Vertical", 31),
    Sketcher.Constraint("Symmetric", 2, 2, 4, 2, -1, 1),
    Sketcher.Constraint("Symmetric", 0, 2, 6, 2, -1, 1),
    Sketcher.Constraint("Symmetric", 8, 2, 20, 2, -1, 1),
    Sketcher.Constraint("Symmetric", 10, 2, 22, 2, -1, 1),
    Sketcher.Constraint("Symmetric", 12, 2, 24, 2, -1, 1),
    Sketcher.Constraint("Symmetric", 14, 2, 26, 2, -1, 1),
    Sketcher.Constraint("Symmetric", 16, 2, 28, 2, -1, 1),
    Sketcher.Constraint("Symmetric", 18, 2, 30, 2, -1, 1),
    Sketcher.Constraint("Symmetric", 11, 2, 14, 2, -2),
    Sketcher.Constraint("Symmetric", 9, 2, 16, 2, -2),
    Sketcher.Constraint("Symmetric", 13, 2, 18, 2, -2),
    Sketcher.Constraint("Vertical", 3, 2, 4, 2),
    Sketcher.Constraint("DistanceX", 1, 1, 1, 2, Q("135 mm")),
    Sketcher.Constraint("DistanceX", 8, 2, 8, 1, Q("20 mm")),
    Sketcher.Constraint("DistanceX", 10, 1, 10, 2, Q("5 mm")),
    Sketcher.Constraint("DistanceY", 0, 2, 0, 1, Q("8 mm")),
    Sketcher.Constraint("DistanceY", 13, 1, 13, 2, Q("3 mm")),
    Sketcher.Constraint("DistanceY", 9, 2, 9, 1, Q("7.5 mm")),
    Sketcher.Constraint("DistanceY", -1, 1, 0, 2, Q("52 mm")),
    Sketcher.Constraint("DistanceX", 8, 2, -1, 1, Q("59 mm")),
    Sketcher.Constraint("DistanceY", -1, 1, 9, 2, Q("25 mm")),
])
pad3 = body.newObject("PartDesign::Pad", "Pad002")
pad3.Profile = sketch10
pad3.Length = 2
doc.recompute()

fillet = body.newObject("PartDesign::Fillet", "Fillet")
fillet.Base = (pad3, edges_at(pad3, [
    (-110, -12, -60),
    (110, -12, -60),
    (110, -12, 60),
    (-110, -12, 60),
]))
fillet.Radius = 3
doc.recompute()

fillet2 = body.newObject("PartDesign::Fillet", "Fillet001")
fillet2.Base = (fillet, edges_at(fillet, [
    (-108.5, -22, 45),
    (-108.5, -3.5, 45),
    (-108.5, -3.5, 5),
    (-108.5, -22, 5),
    (-108.5, -3.5, -5),
    (-108.5, -3.5, -45),
    (-108.5, -22, -45),
    (-108.5, -22, -5),
    (-85, 1.5, -40),
    (-100, 1.5, -40),
    (-85, 1.5, 40),
    (-100, 1.5, 40),
    (-15, 1.5, 51),
    (-15, 1.5, 35),
    (15, 1.5, 35),
    (15, 1.5, 51),
    (100, 1.5, 45),
    (85, 1.5, 5),
    (100, 1.5, 5),
    (15.297, 1, 0),
    (60, 1, -8.941),
    (60, 1, 8.941),
    (0, 1, -3.059),
    (-44.703, 1, -12),
    (44.703, 1, -12),
    (85, 1.5, -5),
    (100, 1.5, -5),
    (85, 1.5, -45),
    (100, 1.5, -45),
    (-15.297, 1, 0),
    (-60, 1, 8.941),
    (-60, 1, -8.941),
    (-15, 1.5, -35),
    (-15, 1.5, -51),
    (15, 1.5, -51),
    (15, 1.5, -35),
    (-44.703, 1, 12),
    (0, 1, 3.059),
    (44.703, 1, 12),
    (108.5, -3.5, 45),
    (108.5, -22, 45),
    (108.5, -3.5, 5),
    (108.5, -22, 5),
    (108.5, -3.5, -45),
    (108.5, -3.5, -5),
    (108.5, -22, -45),
    (108.5, -22, -5),
    (-107, 0, 0),
    (107, 0, 0),
]))
fillet2.Radius = 2

doc.recompute()
